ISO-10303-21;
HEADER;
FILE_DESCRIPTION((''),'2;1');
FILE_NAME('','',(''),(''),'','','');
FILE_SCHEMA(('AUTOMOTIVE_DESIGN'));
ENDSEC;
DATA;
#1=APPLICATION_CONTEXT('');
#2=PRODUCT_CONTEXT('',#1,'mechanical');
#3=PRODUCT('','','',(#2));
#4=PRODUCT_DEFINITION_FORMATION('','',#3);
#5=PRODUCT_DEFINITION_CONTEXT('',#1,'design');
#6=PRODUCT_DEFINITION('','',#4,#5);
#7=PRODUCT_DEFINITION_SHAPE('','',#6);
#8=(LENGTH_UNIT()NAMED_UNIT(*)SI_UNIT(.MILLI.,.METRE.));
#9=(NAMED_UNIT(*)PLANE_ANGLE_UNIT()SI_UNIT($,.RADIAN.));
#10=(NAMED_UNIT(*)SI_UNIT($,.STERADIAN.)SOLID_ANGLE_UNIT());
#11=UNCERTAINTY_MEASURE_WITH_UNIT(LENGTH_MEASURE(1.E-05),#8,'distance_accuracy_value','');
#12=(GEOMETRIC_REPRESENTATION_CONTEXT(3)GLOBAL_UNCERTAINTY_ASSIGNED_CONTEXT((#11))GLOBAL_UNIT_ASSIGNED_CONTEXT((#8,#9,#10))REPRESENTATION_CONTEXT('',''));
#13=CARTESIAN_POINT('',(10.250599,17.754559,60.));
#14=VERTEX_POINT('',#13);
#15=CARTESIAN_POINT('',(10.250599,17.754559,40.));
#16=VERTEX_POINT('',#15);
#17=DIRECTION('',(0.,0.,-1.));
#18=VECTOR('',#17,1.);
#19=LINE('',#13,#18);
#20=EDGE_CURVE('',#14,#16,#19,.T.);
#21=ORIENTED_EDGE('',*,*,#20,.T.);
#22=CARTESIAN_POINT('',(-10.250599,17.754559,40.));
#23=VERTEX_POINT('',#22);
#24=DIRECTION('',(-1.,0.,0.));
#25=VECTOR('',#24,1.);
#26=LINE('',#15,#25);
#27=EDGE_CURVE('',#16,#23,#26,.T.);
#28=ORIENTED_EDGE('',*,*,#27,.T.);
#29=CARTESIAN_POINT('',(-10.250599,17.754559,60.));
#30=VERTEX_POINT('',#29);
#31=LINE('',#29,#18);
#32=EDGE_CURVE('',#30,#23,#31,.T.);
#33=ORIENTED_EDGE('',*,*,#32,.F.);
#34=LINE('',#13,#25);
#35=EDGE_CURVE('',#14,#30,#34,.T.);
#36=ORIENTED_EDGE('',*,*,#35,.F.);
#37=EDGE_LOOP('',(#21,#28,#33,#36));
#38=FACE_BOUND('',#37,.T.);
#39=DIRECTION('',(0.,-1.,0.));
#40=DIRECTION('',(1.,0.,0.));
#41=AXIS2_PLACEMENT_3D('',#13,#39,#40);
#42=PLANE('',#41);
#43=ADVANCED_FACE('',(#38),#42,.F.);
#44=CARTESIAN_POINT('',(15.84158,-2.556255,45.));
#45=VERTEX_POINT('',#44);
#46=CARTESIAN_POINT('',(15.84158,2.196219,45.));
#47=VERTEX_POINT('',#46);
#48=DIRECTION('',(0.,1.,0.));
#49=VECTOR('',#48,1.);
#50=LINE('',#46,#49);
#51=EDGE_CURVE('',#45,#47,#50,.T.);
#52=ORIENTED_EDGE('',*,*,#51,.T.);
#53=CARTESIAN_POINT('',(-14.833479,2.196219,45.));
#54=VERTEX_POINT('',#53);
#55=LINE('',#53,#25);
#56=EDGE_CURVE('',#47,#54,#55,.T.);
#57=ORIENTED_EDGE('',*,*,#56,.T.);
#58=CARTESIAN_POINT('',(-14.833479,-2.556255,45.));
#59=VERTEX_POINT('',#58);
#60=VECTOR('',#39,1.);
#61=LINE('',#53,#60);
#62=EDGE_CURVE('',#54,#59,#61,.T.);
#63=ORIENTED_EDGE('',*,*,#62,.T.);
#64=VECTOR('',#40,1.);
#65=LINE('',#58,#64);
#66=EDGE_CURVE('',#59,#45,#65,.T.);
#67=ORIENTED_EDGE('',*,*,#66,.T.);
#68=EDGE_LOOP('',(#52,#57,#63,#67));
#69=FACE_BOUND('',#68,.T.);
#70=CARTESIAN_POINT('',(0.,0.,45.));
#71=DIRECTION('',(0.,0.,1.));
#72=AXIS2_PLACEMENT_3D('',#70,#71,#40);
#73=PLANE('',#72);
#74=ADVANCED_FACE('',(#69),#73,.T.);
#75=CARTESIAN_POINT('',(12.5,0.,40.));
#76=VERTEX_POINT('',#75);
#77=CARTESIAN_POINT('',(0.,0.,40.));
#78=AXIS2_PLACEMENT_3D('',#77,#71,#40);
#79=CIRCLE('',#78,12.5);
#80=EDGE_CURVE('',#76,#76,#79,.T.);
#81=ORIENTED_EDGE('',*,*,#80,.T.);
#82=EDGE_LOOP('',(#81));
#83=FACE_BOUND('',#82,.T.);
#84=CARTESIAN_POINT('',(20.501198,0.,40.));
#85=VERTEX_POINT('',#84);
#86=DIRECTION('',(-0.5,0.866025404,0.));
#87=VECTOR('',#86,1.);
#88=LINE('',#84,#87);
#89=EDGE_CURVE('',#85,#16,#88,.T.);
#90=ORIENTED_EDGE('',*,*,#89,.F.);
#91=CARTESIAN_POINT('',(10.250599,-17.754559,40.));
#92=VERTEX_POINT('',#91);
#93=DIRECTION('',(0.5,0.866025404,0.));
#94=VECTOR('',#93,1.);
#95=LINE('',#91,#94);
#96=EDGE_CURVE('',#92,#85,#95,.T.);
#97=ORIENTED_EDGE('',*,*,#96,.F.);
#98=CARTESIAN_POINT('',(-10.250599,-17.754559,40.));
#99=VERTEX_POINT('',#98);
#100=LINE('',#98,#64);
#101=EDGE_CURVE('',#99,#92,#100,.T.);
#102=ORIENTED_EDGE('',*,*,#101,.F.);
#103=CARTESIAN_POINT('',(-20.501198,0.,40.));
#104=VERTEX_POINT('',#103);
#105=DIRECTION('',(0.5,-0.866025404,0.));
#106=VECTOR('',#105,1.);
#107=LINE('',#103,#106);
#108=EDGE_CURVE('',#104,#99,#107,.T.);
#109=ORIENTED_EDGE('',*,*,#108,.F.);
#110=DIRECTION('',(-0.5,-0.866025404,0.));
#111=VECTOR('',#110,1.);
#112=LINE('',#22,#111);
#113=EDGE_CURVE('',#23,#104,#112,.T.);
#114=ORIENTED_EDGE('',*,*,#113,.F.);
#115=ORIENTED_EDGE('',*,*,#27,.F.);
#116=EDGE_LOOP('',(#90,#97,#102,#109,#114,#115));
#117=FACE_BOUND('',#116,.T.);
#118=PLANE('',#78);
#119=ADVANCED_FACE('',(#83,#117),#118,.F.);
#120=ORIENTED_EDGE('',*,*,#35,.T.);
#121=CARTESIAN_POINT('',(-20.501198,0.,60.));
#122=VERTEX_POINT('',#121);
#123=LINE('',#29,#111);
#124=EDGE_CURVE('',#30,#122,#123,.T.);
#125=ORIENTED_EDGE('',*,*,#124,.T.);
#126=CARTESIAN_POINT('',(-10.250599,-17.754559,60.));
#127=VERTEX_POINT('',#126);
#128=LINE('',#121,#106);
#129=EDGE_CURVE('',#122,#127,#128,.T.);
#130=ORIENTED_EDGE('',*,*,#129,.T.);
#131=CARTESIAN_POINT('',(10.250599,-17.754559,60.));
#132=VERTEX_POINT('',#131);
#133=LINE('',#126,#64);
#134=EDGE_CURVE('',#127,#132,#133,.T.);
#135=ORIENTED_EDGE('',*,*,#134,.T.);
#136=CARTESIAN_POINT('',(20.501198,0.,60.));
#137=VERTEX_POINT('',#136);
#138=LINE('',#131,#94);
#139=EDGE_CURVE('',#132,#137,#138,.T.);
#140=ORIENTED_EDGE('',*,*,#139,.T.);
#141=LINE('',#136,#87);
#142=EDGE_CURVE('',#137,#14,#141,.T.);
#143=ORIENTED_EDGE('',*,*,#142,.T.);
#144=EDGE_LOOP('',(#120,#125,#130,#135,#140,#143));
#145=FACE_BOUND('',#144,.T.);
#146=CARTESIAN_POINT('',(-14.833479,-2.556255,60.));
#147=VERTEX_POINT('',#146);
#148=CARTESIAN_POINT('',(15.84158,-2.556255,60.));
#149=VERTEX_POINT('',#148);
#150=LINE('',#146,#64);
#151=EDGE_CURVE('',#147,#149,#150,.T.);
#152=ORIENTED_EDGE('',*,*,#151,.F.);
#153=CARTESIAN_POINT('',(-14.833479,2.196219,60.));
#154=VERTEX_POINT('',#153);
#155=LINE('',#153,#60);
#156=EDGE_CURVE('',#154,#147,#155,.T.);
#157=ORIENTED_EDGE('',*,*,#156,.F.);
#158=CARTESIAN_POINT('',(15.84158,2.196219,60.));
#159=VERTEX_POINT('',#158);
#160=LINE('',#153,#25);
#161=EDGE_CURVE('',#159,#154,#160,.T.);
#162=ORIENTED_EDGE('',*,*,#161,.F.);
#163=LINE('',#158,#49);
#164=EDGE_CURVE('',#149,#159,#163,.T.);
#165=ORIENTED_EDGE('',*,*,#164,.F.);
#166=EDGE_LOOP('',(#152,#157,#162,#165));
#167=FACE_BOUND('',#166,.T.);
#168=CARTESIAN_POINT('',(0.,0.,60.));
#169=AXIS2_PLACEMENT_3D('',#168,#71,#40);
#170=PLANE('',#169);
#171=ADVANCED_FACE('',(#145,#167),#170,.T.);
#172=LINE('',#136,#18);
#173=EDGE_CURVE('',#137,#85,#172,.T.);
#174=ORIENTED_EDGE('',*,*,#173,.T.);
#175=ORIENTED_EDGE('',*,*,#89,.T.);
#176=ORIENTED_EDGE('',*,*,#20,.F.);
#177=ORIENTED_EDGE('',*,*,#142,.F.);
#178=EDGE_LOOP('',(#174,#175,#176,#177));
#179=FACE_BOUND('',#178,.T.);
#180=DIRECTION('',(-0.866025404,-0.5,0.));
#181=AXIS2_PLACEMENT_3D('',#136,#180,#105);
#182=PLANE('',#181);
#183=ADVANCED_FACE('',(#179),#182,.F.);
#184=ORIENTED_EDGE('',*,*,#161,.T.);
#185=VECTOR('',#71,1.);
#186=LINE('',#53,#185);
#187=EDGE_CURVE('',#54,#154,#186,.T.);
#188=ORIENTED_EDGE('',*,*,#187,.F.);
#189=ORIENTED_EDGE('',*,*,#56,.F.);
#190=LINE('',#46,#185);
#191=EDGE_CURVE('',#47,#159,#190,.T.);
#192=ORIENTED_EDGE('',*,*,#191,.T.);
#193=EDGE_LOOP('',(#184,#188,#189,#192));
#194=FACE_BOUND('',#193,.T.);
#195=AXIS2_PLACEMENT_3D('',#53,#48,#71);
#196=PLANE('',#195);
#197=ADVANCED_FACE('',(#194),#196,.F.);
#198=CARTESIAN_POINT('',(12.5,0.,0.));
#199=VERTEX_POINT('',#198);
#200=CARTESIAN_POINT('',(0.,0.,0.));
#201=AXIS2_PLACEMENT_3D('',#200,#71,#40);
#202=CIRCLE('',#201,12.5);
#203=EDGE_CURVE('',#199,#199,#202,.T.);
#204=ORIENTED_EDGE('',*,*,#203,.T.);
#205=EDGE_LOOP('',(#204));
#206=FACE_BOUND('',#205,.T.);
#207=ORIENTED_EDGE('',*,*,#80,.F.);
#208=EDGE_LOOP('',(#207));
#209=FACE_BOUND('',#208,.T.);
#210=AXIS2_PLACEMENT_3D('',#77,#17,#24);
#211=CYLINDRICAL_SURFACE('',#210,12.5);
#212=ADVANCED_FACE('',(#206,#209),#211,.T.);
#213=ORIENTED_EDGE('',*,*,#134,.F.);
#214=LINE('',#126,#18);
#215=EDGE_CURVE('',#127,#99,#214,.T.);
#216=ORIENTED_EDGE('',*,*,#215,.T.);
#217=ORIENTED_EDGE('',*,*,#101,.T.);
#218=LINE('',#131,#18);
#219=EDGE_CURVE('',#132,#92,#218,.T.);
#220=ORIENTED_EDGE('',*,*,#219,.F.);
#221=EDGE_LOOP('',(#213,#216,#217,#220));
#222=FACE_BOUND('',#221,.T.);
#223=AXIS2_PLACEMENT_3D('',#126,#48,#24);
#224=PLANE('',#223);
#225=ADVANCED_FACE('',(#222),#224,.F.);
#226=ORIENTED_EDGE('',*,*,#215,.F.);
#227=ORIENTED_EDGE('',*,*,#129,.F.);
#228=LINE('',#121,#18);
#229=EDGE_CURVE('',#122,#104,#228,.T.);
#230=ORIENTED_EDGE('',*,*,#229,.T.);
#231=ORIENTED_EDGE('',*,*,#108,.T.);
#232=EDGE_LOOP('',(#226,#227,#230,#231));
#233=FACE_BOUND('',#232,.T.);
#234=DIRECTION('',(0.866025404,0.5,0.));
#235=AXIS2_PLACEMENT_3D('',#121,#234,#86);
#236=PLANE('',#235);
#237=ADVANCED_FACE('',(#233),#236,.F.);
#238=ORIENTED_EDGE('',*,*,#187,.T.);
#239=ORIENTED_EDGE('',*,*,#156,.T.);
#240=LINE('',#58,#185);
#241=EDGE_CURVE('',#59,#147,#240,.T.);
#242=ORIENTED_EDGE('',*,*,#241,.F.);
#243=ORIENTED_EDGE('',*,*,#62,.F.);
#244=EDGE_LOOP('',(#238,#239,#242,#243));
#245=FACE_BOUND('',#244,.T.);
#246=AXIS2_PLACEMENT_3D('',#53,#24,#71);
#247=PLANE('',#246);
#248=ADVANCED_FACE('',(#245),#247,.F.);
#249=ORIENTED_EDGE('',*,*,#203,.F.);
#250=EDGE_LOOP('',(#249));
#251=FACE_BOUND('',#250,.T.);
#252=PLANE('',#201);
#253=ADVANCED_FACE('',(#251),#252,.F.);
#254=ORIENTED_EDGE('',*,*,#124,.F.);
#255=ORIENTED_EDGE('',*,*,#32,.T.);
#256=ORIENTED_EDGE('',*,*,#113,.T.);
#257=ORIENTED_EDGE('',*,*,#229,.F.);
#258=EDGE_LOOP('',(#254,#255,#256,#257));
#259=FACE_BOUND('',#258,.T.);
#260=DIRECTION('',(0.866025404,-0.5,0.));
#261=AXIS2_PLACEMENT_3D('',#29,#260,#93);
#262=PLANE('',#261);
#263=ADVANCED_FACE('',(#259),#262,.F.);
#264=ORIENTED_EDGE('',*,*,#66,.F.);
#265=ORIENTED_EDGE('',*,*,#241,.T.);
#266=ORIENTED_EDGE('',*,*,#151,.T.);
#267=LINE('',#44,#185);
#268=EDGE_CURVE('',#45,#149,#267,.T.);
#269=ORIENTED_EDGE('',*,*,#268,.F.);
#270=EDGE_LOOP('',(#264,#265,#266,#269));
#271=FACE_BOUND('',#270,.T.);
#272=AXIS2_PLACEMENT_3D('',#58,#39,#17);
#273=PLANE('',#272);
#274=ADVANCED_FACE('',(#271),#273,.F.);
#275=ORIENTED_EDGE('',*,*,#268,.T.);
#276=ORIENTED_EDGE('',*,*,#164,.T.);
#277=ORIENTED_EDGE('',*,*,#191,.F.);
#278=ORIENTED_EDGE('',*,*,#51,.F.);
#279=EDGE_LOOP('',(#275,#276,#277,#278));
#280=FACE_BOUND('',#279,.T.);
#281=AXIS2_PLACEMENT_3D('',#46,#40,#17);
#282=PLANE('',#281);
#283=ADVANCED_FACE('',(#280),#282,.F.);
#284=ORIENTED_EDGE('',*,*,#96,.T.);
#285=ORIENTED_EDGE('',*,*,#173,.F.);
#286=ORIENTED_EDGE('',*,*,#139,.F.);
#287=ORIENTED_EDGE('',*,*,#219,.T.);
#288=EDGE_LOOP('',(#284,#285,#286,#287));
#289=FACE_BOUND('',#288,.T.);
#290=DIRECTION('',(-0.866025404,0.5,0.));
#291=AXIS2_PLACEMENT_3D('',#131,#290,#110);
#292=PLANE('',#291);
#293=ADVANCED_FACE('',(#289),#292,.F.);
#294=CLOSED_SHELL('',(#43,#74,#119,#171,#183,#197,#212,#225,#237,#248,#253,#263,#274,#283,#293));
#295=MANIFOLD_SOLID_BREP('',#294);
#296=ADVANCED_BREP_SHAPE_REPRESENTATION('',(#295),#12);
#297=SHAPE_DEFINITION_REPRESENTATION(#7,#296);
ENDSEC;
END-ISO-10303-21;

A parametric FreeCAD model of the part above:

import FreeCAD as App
import Part
import Sketcher

V = App.Vector
Q = App.Units.Quantity


def add_polygon(sketch, points):
    """Adds a closed chain of lines whose ends are joined by coincident constraints."""
    first, n = sketch.GeometryCount, len(points)
    for a, b in zip(points, points[1:] + points[:1]):
        sketch.addGeometry(Part.LineSegment(App.Vector(*a, 0), App.Vector(*b, 0)), False)
    for i in range(n):
        sketch.addConstraint(Sketcher.Constraint("Coincident", first + i, 2, first + (i + 1) % n, 1))

doc = App.newDocument("Part")
params = doc.addObject("Spreadsheet::Sheet", "Params")
for row, (alias, value) in enumerate([
    ("sketch1_diameter", "25 mm"),
    ("pad1_length", "40 mm"),
    ("pad2_length", "20 mm"),
    ("pocket1_length", "15 mm"),
], start=1):
    params.set(f"A{row}", alias)
    params.set(f"B{row}", "=" + value)
    params.setAlias(f"B{row}", alias)

body = doc.addObject("PartDesign::Body", "Body")

# Sketch on XY plane
sketch1 = body.newObject("Sketcher::SketchObject", "Sketch")
sketch1.AttachmentSupport = (doc.getObject("XY_Plane"), [""])
sketch1.MapMode = "FlatFace"
sketch1.addGeometry(Part.Circle(V(0, 0, 0), V(0, 0, 1), 12), False)
sketch1.addConstraint([
    Sketcher.Constraint("Coincident", 0, 3, -1, 1),
    Sketcher.Constraint("Diameter", 0, Q("25 mm")),
])
sketch1.setExpression("Constraints[1]", "Params.sketch1_diameter")
pad1 = body.newObject("PartDesign::Pad", "Pad")
pad1.Profile = sketch1
pad1.setExpression("Length", "Params.pad1_length")

# Sketch on XY plane
sketch2 = body.newObject("Sketcher::SketchObject", "Sketch001")
sketch2.AttachmentSupport = (doc.getObject("XY_Plane"), [""])
sketch2.MapMode = "FlatFace"
sketch2.AttachmentOffset = App.Placement(V(0, 0, 40), App.Rotation())
add_polygon(sketch2, [(21, 0), (10, 18), (-10, 18), (-21, 0), (-10, -18), (10, -18)])  # lines 0-5
sketch2.addConstraint([
    Sketcher.Constraint("Horizontal", 1),
    Sketcher.Constraint("Horizontal", 4),
    Sketcher.Constraint("Symmetric", 0, 2, 3, 2, -1, 1),
    Sketcher.Constraint("Symmetric", 2, 2, 5, 2, -1, 1),
    Sketcher.Constraint("PointOnObject", 2, 2, -1),
    Sketcher.Constraint("Parallel", 2, 5),
    Sketcher.Constraint("Vertical", 1, 2, 3, 2),
    Sketcher.Constraint("Angle", 0, Q("120 deg")),
    Sketcher.Constraint("DistanceX", 1, 2, 1, 1, Q("20.501198 mm")),
    Sketcher.Constraint("Distance", 0, Q("20.501198 mm")),
])
pad2 = body.newObject("PartDesign::Pad", "Pad001")
pad2.Profile = sketch2
pad2.setExpression("Length", "Params.pad2_length")

# Sketch on XY plane
sketch3 = body.newObject("Sketcher::SketchObject", "Sketch002")
sketch3.AttachmentSupport = (doc.getObject("XY_Plane"), [""])
sketch3.MapMode = "FlatFace"
sketch3.AttachmentOffset = App.Placement(V(0, 0, 60), App.Rotation())
add_polygon(sketch3, [(-14.8, 2.2), (-14.8, -2.6), (15.8, -2.6), (15.8, 2.2)])  # lines 0-3
sketch3.addConstraint([
    Sketcher.Constraint("Vertical", 0),
    Sketcher.Constraint("Horizontal", 1),
    Sketcher.Constraint("Vertical", 2),
    Sketcher.Constraint("Horizontal", 3),
    Sketcher.Constraint("DistanceX", 1, 1, 1, 2, Q("30.675059 mm")),
    Sketcher.Constraint("DistanceY", 0, 2, 0, 1, Q("4.752474 mm")),
    Sketcher.Constraint("DistanceX", 0, 2, -1, 1, Q("14.833479 mm")),
    Sketcher.Constraint("DistanceY", -1, 1, 2, 2, Q("2.196219 mm")),
])
pocket1 = body.newObject("PartDesign::Pocket", "Pocket")
pocket1.Profile = sketch3
pocket1.setExpression("Length", "Params.pocket1_length")

doc.recompute()
